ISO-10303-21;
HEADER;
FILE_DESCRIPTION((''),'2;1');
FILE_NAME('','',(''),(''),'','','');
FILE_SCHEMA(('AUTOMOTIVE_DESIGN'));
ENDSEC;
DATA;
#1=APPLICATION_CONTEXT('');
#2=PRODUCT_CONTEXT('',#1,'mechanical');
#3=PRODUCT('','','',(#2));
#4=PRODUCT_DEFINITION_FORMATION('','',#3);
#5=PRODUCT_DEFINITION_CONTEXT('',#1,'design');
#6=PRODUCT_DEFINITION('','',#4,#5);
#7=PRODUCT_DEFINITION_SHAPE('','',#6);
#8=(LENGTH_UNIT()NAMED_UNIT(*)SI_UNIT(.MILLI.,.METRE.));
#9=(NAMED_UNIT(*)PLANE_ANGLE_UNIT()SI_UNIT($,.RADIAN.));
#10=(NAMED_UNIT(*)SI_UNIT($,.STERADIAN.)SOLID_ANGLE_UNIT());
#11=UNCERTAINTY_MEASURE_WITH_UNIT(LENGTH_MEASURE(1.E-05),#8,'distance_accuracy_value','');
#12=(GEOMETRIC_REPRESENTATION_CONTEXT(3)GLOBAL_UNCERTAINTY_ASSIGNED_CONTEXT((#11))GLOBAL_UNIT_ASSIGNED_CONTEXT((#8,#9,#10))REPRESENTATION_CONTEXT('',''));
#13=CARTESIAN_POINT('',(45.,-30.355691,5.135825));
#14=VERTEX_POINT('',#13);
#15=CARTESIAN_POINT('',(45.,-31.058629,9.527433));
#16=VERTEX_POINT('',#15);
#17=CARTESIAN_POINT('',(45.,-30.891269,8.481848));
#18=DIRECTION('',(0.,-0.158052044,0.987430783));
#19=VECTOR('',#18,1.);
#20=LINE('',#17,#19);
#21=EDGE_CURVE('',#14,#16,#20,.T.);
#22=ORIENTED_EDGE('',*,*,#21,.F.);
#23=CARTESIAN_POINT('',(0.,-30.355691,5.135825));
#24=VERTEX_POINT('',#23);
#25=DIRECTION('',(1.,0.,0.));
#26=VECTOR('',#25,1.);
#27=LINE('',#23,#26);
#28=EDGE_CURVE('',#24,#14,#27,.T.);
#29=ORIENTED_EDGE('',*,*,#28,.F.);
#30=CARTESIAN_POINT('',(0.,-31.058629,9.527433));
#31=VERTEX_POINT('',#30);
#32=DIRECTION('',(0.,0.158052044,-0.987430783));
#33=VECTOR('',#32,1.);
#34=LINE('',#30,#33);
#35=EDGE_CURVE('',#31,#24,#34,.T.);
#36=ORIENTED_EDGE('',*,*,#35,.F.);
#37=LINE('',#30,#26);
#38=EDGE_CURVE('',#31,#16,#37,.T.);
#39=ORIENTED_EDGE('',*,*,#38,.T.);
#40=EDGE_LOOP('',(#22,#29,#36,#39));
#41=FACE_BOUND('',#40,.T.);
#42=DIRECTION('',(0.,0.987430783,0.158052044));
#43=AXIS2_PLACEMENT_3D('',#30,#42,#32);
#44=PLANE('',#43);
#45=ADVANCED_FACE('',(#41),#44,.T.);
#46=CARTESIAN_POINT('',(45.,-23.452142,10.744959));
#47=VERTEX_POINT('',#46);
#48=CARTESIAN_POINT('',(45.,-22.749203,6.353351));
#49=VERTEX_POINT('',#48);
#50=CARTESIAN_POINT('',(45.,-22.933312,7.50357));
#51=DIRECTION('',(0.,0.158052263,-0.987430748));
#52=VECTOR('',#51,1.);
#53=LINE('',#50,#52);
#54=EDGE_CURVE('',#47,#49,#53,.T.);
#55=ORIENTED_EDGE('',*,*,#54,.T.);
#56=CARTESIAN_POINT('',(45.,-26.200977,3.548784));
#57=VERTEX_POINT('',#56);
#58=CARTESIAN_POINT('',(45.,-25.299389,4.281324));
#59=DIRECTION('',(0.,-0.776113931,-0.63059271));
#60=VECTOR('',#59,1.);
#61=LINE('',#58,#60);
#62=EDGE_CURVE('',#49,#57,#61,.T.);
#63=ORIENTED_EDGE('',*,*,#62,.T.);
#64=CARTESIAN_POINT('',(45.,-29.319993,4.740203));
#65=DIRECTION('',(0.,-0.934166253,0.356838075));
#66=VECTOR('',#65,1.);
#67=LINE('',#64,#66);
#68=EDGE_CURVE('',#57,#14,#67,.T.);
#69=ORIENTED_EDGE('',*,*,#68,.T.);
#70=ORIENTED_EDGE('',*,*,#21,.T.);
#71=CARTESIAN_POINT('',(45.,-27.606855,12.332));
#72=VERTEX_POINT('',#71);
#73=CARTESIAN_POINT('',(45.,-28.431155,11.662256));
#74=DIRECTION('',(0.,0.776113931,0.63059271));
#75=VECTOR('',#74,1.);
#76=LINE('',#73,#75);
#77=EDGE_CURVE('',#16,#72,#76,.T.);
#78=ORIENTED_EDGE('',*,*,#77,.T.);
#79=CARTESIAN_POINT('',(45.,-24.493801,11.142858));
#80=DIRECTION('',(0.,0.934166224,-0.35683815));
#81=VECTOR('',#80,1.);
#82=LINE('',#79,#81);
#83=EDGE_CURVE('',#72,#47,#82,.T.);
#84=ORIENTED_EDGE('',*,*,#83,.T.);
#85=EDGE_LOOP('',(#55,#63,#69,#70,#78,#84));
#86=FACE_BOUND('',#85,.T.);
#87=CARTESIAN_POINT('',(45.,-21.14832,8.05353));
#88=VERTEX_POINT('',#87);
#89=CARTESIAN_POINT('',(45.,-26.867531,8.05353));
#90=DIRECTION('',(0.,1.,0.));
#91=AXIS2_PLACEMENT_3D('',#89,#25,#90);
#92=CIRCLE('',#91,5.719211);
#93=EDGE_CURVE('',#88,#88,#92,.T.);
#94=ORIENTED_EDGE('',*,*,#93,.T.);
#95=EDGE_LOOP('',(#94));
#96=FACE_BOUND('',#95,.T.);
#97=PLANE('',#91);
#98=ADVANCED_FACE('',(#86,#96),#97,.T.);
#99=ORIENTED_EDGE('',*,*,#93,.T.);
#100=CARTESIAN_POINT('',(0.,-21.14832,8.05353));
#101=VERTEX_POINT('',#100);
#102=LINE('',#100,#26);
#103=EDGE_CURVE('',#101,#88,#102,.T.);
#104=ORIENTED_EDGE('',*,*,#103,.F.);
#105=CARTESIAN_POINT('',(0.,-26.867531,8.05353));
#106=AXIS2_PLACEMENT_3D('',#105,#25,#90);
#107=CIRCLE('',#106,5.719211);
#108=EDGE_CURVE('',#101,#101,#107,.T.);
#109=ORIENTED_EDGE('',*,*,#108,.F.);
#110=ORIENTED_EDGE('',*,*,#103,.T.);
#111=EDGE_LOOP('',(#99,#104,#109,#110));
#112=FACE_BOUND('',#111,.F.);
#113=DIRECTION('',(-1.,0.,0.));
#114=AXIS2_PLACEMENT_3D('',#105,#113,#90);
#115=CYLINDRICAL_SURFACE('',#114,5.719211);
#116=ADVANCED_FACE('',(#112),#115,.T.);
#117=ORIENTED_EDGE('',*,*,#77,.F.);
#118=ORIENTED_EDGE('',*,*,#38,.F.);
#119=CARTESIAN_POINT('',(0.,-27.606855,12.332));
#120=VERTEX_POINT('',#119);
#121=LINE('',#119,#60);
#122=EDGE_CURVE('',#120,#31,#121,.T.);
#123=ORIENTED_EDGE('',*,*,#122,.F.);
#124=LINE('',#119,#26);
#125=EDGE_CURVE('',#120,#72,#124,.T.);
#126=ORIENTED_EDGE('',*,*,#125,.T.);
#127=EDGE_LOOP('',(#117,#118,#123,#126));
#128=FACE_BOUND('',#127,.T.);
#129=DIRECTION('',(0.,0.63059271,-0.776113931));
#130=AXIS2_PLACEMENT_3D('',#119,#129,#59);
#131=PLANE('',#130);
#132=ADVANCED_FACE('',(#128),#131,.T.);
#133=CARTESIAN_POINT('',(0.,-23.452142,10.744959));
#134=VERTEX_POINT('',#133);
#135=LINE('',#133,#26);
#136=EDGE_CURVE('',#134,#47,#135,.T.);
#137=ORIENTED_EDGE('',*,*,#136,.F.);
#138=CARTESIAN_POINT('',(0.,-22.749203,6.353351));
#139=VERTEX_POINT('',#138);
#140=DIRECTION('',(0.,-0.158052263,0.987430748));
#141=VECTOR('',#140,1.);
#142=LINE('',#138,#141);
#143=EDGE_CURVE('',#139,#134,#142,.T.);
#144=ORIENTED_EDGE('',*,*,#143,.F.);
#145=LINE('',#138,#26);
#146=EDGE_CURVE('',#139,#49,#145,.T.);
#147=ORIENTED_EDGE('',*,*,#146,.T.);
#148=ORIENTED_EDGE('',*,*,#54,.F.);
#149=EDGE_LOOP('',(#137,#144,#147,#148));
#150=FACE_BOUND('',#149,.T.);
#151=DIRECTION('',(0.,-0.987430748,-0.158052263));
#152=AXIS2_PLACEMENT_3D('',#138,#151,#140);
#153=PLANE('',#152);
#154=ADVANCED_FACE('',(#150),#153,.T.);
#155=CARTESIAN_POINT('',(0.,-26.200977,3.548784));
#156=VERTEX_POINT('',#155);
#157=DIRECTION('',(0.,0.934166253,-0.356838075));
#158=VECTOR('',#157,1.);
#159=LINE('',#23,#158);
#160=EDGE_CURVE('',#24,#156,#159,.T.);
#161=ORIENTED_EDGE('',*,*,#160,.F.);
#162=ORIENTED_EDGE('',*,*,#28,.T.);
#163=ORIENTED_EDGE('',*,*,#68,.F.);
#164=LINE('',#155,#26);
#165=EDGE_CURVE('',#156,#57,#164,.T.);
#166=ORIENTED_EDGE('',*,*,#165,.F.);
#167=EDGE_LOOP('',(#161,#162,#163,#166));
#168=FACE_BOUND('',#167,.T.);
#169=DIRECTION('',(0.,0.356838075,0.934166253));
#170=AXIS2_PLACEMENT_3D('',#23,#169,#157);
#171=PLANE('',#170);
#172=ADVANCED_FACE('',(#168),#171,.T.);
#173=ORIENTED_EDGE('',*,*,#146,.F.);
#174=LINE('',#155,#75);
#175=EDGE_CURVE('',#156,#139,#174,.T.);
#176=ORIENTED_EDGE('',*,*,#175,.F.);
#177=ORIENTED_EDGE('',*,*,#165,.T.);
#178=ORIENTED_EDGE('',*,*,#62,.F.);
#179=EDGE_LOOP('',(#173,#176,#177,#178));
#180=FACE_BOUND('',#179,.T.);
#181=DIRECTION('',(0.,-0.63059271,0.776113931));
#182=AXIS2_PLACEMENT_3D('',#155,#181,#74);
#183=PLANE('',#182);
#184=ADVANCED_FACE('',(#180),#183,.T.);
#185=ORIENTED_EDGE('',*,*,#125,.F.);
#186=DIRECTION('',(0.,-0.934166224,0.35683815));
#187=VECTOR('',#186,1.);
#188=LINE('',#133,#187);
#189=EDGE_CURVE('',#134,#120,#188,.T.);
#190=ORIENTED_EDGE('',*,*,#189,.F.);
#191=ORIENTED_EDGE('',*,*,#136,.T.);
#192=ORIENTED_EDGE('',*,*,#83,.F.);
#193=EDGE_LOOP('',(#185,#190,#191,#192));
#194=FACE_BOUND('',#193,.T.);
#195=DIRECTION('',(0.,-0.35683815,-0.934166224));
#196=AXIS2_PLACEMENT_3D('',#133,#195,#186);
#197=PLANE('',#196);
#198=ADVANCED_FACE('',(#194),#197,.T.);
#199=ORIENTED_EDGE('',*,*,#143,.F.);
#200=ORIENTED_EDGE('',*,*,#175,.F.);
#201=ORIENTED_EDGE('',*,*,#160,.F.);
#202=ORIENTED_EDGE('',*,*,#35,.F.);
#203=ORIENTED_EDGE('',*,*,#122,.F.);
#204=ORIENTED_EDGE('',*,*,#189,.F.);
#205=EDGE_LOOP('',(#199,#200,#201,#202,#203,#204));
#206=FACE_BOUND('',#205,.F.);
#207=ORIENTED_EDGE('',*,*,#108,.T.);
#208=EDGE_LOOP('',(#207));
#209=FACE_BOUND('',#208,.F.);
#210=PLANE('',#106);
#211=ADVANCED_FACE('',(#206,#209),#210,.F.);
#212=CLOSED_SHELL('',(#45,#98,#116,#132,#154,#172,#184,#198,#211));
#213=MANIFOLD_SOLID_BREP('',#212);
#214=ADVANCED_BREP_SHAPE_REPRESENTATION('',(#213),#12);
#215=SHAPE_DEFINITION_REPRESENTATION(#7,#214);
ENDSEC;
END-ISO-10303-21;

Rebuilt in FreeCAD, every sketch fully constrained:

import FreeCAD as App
import Part
import Sketcher
from FreeCAD import Vector

doc = App.newDocument("Part")
body = doc.addObject("PartDesign::Body", "Body")

# Sketch on YZ plane
sketch1 = body.newObject("Sketcher::SketchObject", "Sketch")
sketch1.AttachmentSupport = (doc.getObject("YZ_Plane"), [""])
sketch1.MapMode = "FlatFace"
sketch1.addGeometry(Part.Circle(Vector(-27, 8, 0), Vector(0, 0, 1), 6), False)
sketch1.addConstraint(Sketcher.Constraint("Diameter", 0, 11.438422))
sketch1.addConstraint(Sketcher.Constraint("DistanceX", 0, 3, -1, 1, 26.867531))
sketch1.addConstraint(Sketcher.Constraint("DistanceY", -1, 1, 0, 3, 8.05353))
pad1 = body.newObject("PartDesign::Pad", "Pad")
pad1.Profile = sketch1
pad1.Length = 45

# Sketch on YZ plane
sketch2 = body.newObject("Sketcher::SketchObject", "Sketch001")
sketch2.AttachmentSupport = (doc.getObject("YZ_Plane"), [""])
sketch2.MapMode = "FlatFace"
sketch2.addGeometry(Part.LineSegment(Vector(-26.2, 3.5, 0), Vector(-22.7, 6.4, 0)), False)
sketch2.addGeometry(Part.LineSegment(Vector(-22.7, 6.4, 0), Vector(-23.5, 10.7, 0)), False)
sketch2.addGeometry(Part.LineSegment(Vector(-23.5, 10.7, 0), Vector(-27.6, 12.3, 0)), False)
sketch2.addGeometry(Part.LineSegment(Vector(-27.6, 12.3, 0), Vector(-31.1, 9.5, 0)), False)
sketch2.addGeometry(Part.LineSegment(Vector(-31.1, 9.5, 0), Vector(-30.4, 5.1, 0)), False)
sketch2.addGeometry(Part.LineSegment(Vector(-30.4, 5.1, 0), Vector(-26.2, 3.5, 0)), False)
sketch2.addConstraint(Sketcher.Constraint("Coincident", 0, 2, 1, 1))
sketch2.addConstraint(Sketcher.Constraint("Coincident", 1, 2, 2, 1))
sketch2.addConstraint(Sketcher.Constraint("Coincident", 2, 2, 3, 1))
sketch2.addConstraint(Sketcher.Constraint("Coincident", 3, 2, 4, 1))
sketch2.addConstraint(Sketcher.Constraint("Coincident", 4, 2, 5, 1))
sketch2.addConstraint(Sketcher.Constraint("Coincident", 5, 2, 0, 1))
sketch2.addConstraint(Sketcher.Constraint("Parallel", 0, 3))
sketch2.addConstraint(Sketcher.Constraint("Parallel", 1, 4))
sketch2.addConstraint(Sketcher.Constraint("Parallel", 2, 5))
sketch2.addConstraint(Sketcher.Constraint("Equal", 0, 1))
sketch2.addConstraint(Sketcher.Constraint("Equal", 1, 2))
sketch2.addConstraint(Sketcher.Constraint("Equal", 2, 3))
sketch2.addConstraint(Sketcher.Constraint("DistanceY", -1, 1, 2, 2, 12.332))
sketch2.addConstraint(Sketcher.Constraint("Distance", 0, 4.447509))
sketch2.addConstraint(Sketcher.Constraint("DistanceY", -1, 1, 0, 2, 6.353351))
sketch2.addConstraint(Sketcher.Constraint("DistanceX", 1, 2, -1, 1, 23.452142))
sketch2.addConstraint(Sketcher.Constraint("DistanceY", -1, 1, 1, 2, 10.744959))
sketch2.addConstraint(Sketcher.Constraint("DistanceX", 3, 2, -1, 1, 31.058629))
pocket1 = body.newObject("PartDesign::Pocket", "Pocket")
pocket1.Profile = sketch2
pocket1.Type = "ThroughAll"
pocket1.Reversed = True

doc.recompute()
